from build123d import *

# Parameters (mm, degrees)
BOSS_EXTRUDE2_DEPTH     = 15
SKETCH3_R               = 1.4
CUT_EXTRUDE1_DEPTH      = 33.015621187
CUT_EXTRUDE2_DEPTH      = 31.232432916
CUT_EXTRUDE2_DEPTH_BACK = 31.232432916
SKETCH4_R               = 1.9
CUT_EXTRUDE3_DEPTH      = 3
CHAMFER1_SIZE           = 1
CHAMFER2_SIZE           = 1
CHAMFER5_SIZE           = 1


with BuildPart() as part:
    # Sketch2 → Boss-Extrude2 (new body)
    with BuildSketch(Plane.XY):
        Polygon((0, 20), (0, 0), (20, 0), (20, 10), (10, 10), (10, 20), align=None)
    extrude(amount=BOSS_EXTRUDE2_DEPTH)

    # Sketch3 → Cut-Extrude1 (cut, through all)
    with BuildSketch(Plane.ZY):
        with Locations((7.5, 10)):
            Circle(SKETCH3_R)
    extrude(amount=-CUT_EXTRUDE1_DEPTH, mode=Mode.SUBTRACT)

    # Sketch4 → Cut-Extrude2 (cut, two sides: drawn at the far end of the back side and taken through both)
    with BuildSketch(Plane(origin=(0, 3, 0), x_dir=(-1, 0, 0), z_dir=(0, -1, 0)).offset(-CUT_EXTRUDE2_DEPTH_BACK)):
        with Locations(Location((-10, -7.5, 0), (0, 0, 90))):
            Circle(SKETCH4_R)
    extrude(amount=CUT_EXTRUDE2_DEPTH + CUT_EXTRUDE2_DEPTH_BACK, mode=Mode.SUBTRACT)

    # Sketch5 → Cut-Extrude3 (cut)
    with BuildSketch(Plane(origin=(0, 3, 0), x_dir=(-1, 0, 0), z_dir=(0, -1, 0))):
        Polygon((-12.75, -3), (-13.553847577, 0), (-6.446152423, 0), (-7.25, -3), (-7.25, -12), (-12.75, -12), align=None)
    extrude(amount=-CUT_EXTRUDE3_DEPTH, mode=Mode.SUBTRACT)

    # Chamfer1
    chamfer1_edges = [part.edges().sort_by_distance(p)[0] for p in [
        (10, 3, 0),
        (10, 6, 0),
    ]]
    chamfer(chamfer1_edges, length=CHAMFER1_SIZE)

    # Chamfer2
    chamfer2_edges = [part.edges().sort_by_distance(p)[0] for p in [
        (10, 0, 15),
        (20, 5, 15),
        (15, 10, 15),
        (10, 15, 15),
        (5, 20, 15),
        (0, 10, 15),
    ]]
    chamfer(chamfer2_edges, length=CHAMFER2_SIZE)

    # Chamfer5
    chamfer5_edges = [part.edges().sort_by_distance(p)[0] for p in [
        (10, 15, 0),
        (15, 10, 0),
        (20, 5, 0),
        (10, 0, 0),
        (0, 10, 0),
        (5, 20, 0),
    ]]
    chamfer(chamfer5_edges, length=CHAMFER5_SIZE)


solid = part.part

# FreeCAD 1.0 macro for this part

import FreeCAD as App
import Part
import Sketcher
Q = App.Units.Quantity


def edges_at(feature, points):
    """Names of the edges that pass closest to the given points."""
    edges = feature.Shape.Edges
    near = lambda p: min(range(len(edges)), key=lambda i: edges[i].distToShape(Part.Vertex(*p))[0])
    return sorted({f"Edge{near(p) + 1}" for p in points})


def add_polygon(sketch, points):
    """Adds a closed chain of lines whose ends are joined by coincident constraints."""
    first, n = sketch.GeometryCount, len(points)
    for a, b in zip(points, points[1:] + points[:1]):
        sketch.addGeometry(Part.LineSegment(App.Vector(*a, 0), App.Vector(*b, 0)), False)
    for i in range(n):
        sketch.addConstraint(Sketcher.Constraint("Coincident", first + i, 2, first + (i + 1) % n, 1))

doc = App.newDocument("Part")
params = doc.addObject("Spreadsheet::Sheet", "Params")
for row, (alias, value) in enumerate([
    ("sketch1_width", "20 mm"),
    ("pad1_length", "15 mm"),
    ("sketch2_diameter", "2.8 mm"),
    ("sketch3_diameter", "3.8 mm"),
    ("sketch4_height", "9 mm"),
    ("sketch4_width", "5.5 mm"),
    ("pocket3_length", "3 mm"),
    ("chamfer_size", "1 mm"),
    ("chamfer2_size", "1 mm"),
    ("chamfer3_size", "1 mm"),
], start=1):
    params.set(f"A{row}", alias)
    params.set(f"B{row}", "=" + value)
    params.setAlias(f"B{row}", alias)

body = doc.addObject("PartDesign::Body", "Body")

# Sketch on XY plane
sketch1 = body.newObject("Sketcher::SketchObject", "Sketch")
sketch1.AttachmentSupport = (doc.getObject("XY_Plane"), [""])
sketch1.MapMode = "FlatFace"
add_polygon(sketch1, [(0, 20), (0, 0), (20, 0), (20, 10), (10, 10), (10, 20)])  # lines 0-5
sketch1.addConstraint([
    Sketcher.Constraint("Vertical", 0),
    Sketcher.Constraint("Horizontal", 1),
    Sketcher.Constraint("Vertical", 2),
    Sketcher.Constraint("Horizontal", 3),
    Sketcher.Constraint("Vertical", 4),
    Sketcher.Constraint("Horizontal", 5),
    Sketcher.Constraint("Coincident", 0, 2, -1, 1),
    Sketcher.Constraint("Equal", 3, 5),
    Sketcher.Constraint("Equal", 1, 0),
    Sketcher.Constraint("Equal", 5, 2),
    Sketcher.Constraint("DistanceX", 1, 1, 1, 2, Q("20 mm")),
])
sketch1.setExpression("Constraints[16]", "Params.sketch1_width")
pad1 = body.newObject("PartDesign::Pad", "Pad")
pad1.Profile = sketch1
pad1.setExpression("Length", "Params.pad1_length")

# Sketch on YZ plane
sketch2 = body.newObject("Sketcher::SketchObject", "Sketch001")
sketch2.AttachmentSupport = (doc.getObject("YZ_Plane"), [""])
sketch2.MapMode = "FlatFace"
sketch2.addGeometry(Part.Circle(App.Vector(10, 7.5, 0), App.Vector(0, 0, 1), 1.4), False)
sketch2.addConstraint([
    Sketcher.Constraint("Diameter", 0, Q("2.8 mm")),
    Sketcher.Constraint("DistanceX", -1, 1, 0, 3, Q("10 mm")),
    Sketcher.Constraint("DistanceY", -1, 1, 0, 3, Q("7.5 mm")),
])
sketch2.setExpression("Constraints[0]", "Params.sketch2_diameter")
pocket1 = body.newObject("PartDesign::Pocket", "Pocket")
pocket1.Profile = sketch2
pocket1.Type = "ThroughAll"
pocket1.Reversed = True

# Sketch on XZ plane
sketch3 = body.newObject("Sketcher::SketchObject", "Sketch002")
sketch3.AttachmentSupport = (doc.getObject("XZ_Plane"), [""])
sketch3.MapMode = "FlatFace"
sketch3.AttachmentOffset = App.Placement(App.Vector(0, 0, -3), App.Rotation())
sketch3.addGeometry(Part.Circle(App.Vector(10, 7.5, 0), App.Vector(0, 0, 1), 1.9), False)
sketch3.addConstraint([
    Sketcher.Constraint("Diameter", 0, Q("3.8 mm")),
    Sketcher.Constraint("DistanceX", -1, 1, 0, 3, Q("10 mm")),
    Sketcher.Constraint("DistanceY", -1, 1, 0, 3, Q("7.5 mm")),
])
sketch3.setExpression("Constraints[0]", "Params.sketch3_diameter")
pocket2 = body.newObject("PartDesign::Pocket", "Pocket001")
pocket2.Profile = sketch3
pocket2.Type = "ThroughAll"
pocket2.Midplane = True

# Sketch on XZ plane
sketch4 = body.newObject("Sketcher::SketchObject", "Sketch003")
sketch4.AttachmentSupport = (doc.getObject("XZ_Plane"), [""])
sketch4.MapMode = "FlatFace"
sketch4.AttachmentOffset = App.Placement(App.Vector(0, 0, -3), App.Rotation())
add_polygon(sketch4, [(13.553848, 0), (12.75, 3), (12.75, 12), (7.25, 12), (7.25, 3), (6.446152, 0)])  # lines 0-5
sketch4.addConstraint([
    Sketcher.Constraint("Vertical", 1),
    Sketcher.Constraint("Horizontal", 2),
    Sketcher.Constraint("Vertical", 3),
    Sketcher.Constraint("Horizontal", 5),
    Sketcher.Constraint("PointOnObject", 4, 2, -1),
    Sketcher.Constraint("Horizontal", 0, 2, 3, 2),
    Sketcher.Constraint("Equal", 0, 4),
    Sketcher.Constraint("DistanceY", 1, 1, 1, 2, Q("9 mm")),
    Sketcher.Constraint("Angle", 0, Q("105 deg")),
    Sketcher.Constraint("DistanceX", 2, 2, 2, 1, Q("5.5 mm")),
    Sketcher.Constraint("DistanceY", -1, 1, 0, 2, Q("3 mm")),
    Sketcher.Constraint("DistanceX", -1, 1, 0, 2, Q("12.75 mm")),
])
sketch4.setExpression("Constraints[13]", "Params.sketch4_height")
sketch4.setExpression("Constraints[15]", "Params.sketch4_width")
pocket3 = body.newObject("PartDesign::Pocket", "Pocket002")
pocket3.Profile = sketch4
pocket3.setExpression("Length", "Params.pocket3_length")
doc.recompute()

chamfer = body.newObject("PartDesign::Chamfer", "Chamfer")
chamfer.Base = (pocket3, edges_at(pocket3, [(10, 3, 0), (10, 6, 0)]))
chamfer.setExpression("Size", "Params.chamfer_size")
doc.recompute()

chamfer2 = body.newObject("PartDesign::Chamfer", "Chamfer001")
chamfer2.Base = (chamfer, edges_at(chamfer, [
    (10, 0, 15),
    (20, 5, 15),
    (15, 10, 15),
    (10, 15, 15),
    (5, 20, 15),
    (0, 10, 15),
]))
chamfer2.setExpression("Size", "Params.chamfer2_size")
doc.recompute()

chamfer3 = body.newObject("PartDesign::Chamfer", "Chamfer002")
chamfer3.Base = (chamfer2, edges_at(chamfer2, [
    (10, 15, 0),
    (15, 10, 0),
    (20, 5, 0),
    (10, 0, 0),
    (0, 10, 0),
    (5, 20, 0),
]))
chamfer3.setExpression("Size", "Params.chamfer3_size")

doc.recompute()
